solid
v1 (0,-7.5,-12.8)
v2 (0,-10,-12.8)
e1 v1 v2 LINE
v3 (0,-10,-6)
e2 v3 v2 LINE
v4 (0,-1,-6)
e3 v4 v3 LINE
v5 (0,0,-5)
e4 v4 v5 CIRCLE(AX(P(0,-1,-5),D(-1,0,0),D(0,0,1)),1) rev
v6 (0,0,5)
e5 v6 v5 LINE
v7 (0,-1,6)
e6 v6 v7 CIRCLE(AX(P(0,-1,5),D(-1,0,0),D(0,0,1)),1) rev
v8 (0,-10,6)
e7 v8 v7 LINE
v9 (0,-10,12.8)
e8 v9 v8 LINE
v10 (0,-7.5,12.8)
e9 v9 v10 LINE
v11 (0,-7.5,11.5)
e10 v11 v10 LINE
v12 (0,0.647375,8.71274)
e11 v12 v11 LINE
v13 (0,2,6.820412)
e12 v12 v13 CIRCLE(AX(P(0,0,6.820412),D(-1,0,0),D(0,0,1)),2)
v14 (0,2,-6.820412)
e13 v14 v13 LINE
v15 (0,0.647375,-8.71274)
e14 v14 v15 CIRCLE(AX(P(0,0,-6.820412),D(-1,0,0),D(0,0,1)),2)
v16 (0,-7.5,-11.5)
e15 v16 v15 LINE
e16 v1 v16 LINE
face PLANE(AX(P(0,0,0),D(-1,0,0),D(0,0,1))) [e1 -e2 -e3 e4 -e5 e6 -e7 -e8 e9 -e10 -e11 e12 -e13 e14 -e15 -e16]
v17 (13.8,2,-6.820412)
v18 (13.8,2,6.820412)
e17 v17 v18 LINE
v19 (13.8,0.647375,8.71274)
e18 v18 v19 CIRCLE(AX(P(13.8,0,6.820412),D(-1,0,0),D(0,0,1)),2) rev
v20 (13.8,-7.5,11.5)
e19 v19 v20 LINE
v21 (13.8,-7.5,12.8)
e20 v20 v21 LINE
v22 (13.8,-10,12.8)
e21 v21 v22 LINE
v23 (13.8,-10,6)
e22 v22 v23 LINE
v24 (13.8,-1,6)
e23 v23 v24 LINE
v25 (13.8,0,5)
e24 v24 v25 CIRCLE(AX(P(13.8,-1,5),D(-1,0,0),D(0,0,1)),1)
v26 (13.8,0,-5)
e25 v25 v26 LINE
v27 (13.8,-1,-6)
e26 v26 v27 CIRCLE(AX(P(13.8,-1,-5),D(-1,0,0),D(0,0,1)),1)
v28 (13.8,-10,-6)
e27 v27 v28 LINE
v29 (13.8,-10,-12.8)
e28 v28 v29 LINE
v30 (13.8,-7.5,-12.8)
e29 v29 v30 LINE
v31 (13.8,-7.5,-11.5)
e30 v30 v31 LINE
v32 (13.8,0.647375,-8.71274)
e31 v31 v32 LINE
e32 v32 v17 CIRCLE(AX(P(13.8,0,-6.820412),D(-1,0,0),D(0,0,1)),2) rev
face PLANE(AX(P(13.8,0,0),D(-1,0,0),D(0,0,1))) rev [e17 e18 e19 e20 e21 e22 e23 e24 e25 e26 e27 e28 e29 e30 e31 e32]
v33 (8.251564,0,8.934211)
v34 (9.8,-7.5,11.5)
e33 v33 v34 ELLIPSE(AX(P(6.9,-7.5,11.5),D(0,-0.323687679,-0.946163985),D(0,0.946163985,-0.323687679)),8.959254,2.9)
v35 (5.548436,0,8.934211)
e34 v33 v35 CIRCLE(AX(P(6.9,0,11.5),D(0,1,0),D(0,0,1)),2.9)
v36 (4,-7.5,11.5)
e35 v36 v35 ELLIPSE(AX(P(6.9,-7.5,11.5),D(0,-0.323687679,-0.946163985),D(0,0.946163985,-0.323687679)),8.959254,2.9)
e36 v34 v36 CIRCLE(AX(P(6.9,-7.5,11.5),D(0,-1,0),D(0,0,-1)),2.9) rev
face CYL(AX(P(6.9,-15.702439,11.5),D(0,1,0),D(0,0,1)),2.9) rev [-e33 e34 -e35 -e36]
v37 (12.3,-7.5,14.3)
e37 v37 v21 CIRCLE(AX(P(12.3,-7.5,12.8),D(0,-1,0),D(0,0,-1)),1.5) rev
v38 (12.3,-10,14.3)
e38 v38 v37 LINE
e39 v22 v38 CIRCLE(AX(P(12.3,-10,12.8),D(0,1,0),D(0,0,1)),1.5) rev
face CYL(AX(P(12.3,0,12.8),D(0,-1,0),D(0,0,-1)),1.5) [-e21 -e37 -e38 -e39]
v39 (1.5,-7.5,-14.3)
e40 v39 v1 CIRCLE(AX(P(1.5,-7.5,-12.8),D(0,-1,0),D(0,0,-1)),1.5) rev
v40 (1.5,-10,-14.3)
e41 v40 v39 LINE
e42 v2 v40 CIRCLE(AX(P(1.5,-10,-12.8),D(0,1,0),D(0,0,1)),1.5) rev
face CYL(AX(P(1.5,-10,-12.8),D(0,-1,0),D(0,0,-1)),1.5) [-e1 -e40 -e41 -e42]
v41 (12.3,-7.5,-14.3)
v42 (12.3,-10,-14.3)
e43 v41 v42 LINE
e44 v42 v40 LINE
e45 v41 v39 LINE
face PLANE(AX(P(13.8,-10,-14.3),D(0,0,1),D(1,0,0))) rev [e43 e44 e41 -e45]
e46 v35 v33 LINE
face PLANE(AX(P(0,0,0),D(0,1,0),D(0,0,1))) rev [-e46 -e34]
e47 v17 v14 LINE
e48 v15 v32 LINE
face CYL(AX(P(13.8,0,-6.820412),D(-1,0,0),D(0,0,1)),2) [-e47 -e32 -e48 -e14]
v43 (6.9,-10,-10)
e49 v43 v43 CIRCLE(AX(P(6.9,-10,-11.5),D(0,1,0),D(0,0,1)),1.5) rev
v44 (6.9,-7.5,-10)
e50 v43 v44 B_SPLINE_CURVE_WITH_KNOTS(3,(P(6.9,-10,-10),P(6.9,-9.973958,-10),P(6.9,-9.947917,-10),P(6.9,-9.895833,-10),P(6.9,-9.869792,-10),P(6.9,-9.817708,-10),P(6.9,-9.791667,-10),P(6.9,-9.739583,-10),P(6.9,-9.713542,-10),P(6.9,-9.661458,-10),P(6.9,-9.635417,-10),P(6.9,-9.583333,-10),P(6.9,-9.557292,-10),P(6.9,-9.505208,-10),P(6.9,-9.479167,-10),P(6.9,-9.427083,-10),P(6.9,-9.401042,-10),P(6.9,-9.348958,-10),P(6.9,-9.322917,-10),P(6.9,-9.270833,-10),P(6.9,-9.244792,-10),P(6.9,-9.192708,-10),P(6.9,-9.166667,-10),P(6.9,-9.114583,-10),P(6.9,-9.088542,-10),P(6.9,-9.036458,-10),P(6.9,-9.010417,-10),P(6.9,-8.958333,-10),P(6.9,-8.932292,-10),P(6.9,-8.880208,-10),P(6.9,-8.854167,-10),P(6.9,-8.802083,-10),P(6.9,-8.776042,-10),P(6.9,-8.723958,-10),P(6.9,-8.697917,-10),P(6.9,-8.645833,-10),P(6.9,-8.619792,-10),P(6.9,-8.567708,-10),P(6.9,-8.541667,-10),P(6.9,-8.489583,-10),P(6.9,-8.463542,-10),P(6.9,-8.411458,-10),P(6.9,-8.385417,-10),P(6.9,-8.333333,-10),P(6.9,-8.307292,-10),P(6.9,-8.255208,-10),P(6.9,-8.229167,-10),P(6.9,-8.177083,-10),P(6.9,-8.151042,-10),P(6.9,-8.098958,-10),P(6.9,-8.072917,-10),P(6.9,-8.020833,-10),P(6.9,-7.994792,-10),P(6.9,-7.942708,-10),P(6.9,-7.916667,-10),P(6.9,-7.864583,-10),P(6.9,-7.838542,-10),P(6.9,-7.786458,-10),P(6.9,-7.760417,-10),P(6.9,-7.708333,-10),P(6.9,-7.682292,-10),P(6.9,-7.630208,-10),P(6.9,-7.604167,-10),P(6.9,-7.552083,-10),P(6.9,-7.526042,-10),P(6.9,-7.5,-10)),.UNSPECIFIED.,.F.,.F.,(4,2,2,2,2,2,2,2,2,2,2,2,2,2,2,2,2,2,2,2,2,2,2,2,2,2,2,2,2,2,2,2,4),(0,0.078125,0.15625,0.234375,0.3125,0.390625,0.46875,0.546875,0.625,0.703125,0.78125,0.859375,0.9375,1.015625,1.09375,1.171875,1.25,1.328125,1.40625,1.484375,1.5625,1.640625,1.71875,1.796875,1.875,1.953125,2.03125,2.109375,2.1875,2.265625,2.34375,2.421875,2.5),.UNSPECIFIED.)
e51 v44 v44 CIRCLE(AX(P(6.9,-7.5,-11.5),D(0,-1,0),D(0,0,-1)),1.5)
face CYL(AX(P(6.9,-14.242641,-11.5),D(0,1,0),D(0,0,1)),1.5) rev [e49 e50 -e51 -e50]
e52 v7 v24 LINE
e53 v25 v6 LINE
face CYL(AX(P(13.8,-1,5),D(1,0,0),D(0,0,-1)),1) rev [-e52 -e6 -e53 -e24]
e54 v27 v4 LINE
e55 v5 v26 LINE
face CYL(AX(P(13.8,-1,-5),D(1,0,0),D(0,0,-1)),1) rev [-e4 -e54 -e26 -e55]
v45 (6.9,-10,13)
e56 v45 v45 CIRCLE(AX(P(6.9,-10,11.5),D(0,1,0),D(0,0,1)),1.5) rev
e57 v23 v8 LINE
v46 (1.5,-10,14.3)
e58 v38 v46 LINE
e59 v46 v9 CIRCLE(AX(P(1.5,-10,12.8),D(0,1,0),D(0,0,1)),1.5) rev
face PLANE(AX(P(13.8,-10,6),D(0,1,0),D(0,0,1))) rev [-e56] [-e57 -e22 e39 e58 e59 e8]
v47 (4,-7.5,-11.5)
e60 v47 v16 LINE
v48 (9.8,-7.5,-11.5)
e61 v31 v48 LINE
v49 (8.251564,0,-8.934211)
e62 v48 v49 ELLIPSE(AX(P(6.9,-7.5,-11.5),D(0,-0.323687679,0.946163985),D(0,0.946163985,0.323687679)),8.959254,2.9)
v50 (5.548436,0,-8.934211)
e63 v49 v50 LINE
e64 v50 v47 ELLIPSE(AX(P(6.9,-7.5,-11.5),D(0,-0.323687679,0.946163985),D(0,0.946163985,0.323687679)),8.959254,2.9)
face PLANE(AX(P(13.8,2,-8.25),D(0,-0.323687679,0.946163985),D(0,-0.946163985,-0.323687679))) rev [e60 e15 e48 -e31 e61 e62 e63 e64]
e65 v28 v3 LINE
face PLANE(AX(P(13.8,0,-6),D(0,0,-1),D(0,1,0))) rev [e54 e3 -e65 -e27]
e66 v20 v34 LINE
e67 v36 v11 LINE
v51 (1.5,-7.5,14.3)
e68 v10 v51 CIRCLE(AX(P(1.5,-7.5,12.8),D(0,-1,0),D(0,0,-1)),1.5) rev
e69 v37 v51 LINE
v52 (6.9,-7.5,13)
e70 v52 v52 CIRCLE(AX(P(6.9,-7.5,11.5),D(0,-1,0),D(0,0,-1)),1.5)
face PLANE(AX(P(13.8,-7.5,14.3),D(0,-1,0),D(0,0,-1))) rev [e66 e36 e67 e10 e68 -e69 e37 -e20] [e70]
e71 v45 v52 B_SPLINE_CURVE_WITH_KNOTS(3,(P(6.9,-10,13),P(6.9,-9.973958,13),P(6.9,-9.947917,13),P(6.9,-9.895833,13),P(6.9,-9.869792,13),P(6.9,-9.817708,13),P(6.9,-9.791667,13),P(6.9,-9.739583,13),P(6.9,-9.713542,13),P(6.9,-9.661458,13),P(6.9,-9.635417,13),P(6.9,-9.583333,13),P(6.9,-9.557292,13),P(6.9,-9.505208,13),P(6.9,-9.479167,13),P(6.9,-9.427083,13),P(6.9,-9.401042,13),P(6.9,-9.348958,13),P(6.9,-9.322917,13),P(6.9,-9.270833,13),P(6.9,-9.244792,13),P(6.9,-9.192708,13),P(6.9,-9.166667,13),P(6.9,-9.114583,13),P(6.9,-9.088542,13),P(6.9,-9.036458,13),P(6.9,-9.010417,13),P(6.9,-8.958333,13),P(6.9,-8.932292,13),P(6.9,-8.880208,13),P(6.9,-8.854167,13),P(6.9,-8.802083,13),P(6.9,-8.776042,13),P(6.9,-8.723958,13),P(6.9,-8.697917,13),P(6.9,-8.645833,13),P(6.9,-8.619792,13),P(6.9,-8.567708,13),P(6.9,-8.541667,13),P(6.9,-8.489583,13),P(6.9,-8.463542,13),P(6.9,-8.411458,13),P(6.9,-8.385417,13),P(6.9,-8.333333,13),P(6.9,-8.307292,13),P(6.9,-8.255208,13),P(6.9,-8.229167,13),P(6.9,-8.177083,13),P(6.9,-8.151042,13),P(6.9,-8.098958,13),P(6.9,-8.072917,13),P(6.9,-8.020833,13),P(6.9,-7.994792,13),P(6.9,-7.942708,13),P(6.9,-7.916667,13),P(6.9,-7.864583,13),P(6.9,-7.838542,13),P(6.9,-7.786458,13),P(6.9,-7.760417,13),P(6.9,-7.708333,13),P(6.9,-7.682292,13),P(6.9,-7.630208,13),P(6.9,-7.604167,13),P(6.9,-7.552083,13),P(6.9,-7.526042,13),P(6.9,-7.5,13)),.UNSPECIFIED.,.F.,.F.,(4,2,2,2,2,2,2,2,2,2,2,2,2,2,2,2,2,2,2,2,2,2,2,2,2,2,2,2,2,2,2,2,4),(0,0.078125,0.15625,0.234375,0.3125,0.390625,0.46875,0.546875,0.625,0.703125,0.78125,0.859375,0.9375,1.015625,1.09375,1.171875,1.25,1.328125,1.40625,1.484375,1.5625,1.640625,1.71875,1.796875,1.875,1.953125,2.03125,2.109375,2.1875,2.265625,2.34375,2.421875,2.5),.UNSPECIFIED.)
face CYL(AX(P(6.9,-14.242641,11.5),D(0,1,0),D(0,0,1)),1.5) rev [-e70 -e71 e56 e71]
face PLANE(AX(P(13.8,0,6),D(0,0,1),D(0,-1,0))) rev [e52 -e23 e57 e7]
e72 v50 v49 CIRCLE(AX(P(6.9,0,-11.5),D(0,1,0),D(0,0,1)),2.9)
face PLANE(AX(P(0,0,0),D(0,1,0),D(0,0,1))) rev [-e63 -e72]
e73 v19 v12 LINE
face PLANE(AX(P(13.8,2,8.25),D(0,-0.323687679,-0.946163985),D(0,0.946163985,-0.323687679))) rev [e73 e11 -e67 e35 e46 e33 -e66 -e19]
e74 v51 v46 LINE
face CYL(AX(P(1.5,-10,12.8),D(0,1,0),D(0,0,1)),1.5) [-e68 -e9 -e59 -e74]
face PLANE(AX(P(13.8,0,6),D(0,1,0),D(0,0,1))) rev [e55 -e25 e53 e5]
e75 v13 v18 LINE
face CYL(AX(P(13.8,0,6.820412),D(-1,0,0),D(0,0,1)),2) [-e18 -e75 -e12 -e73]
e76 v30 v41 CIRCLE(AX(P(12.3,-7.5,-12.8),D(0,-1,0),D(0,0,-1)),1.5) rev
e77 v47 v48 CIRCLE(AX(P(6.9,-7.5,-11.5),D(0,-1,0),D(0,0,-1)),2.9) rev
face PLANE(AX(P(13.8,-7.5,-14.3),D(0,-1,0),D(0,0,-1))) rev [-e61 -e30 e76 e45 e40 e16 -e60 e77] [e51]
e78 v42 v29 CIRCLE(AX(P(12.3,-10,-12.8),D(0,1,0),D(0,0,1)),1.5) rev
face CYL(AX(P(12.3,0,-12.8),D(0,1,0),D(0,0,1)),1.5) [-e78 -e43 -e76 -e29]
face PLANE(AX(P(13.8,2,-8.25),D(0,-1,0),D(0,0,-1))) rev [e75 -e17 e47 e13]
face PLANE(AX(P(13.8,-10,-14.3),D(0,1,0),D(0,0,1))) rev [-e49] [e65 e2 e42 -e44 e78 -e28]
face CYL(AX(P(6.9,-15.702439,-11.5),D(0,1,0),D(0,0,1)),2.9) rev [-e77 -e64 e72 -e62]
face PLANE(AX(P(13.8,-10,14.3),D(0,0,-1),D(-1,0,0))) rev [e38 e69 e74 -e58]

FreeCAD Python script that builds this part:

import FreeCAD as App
import Part
import Sketcher
from FreeCAD import Vector


def edges_at(feature, points):
    """Names of the edges that pass closest to the given points."""
    edges = feature.Shape.Edges
    near = lambda p: min(range(len(edges)), key=lambda i: edges[i].distToShape(Part.Vertex(*p))[0])
    return sorted({f"Edge{near(p) + 1}" for p in points})


def add_polygon(sketch, points):
    """Adds a closed chain of lines whose ends are joined by coincident constraints."""
    first, n = sketch.GeometryCount, len(points)
    for a, b in zip(points, points[1:] + points[:1]):
        sketch.addGeometry(Part.LineSegment(App.Vector(*a, 0), App.Vector(*b, 0)), False)
    for i in range(n):
        sketch.addConstraint(Sketcher.Constraint("Coincident", first + i, 2, first + (i + 1) % n, 1))

doc = App.newDocument("Part")
params = doc.addObject("Spreadsheet::Sheet", "Params")
for row, (alias, value) in enumerate([
    ("sketch1_width", "10 mm"),
    ("sketch1_height", "12 mm"),
    ("sketch1_width2", "2.5 mm"),
    ("sketch1_height2", "8.3 mm"),
    ("sketch1_height3", "2.8 mm"),
    ("pad1_length", "13.8 mm"),
    ("sketch2_diameter", "3 mm"),
    ("pocket1_length", "10 mm"),
    ("sketch3_diameter", "3 mm"),
    ("sketch3_diameter2", "5.8 mm"),
    ("pocket2_length", "7.5 mm"),
    ("fillet_radius", "1 mm"),
    ("fillet2_radius", "2 mm"),
    ("fillet3_radius", "1.5 mm"),
], start=1):
    params.set(f"A{row}", alias)
    params.set(f"B{row}", "=" + value)
    params.setAlias(f"B{row}", alias)

body = doc.addObject("PartDesign::Body", "Body")

sketch1 = body.newObject("Sketcher::SketchObject", "Sketch")
sketch1.AttachmentSupport = (doc.getObject("YZ_Plane"), [""])
sketch1.MapMode = "FlatFace"
add_polygon(sketch1, [(0, 6), (0, -6), (-10, -6), (-10, -14.3), (-7.5, -14.3), (-7.5, -11.5), (2, -8.25), (2, 8.25), (-7.5, 11.5), (-7.5, 14.3), (-10, 14.3), (-10, 6)])
sketch1.addConstraint([
    Sketcher.Constraint("Vertical", 0),
    Sketcher.Constraint("Horizontal", 1),
    Sketcher.Constraint("Vertical", 2),
    Sketcher.Constraint("Horizontal", 3),
    Sketcher.Constraint("Vertical", 4),
    Sketcher.Constraint("Vertical", 6),
    Sketcher.Constraint("Vertical", 8),
    Sketcher.Constraint("Horizontal", 9),
    Sketcher.Constraint("Vertical", 10),
    Sketcher.Constraint("Horizontal", 11),
    Sketcher.Constraint("Symmetric", 0, 2, 11, 2, -1, 1),
    Sketcher.Constraint("Symmetric", 4, 2, 7, 2, -1),
    Sketcher.Constraint("Symmetric", 2, 2, 9, 2, -1),
    Sketcher.Constraint("Equal", 5, 7),
    Sketcher.Constraint("DistanceX", 1, 2, 1, 1, 10.0),
    Sketcher.Constraint("DistanceY", 0, 2, 0, 1, 12.0),
    Sketcher.Constraint("DistanceX", 3, 1, 3, 2, 2.5),
    Sketcher.Constraint("DistanceY", 2, 2, 2, 1, 8.3),
    Sketcher.Constraint("DistanceY", 4, 1, 4, 2, 2.8),
    Sketcher.Constraint("DistanceY", 6, 1, 6, 2, 16.5),
    Sketcher.Constraint("DistanceX", -1, 1, 5, 2, 2.0),
])
sketch1.setExpression("Constraints[26]", "Params.sketch1_width")
sketch1.setExpression("Constraints[27]", "Params.sketch1_height")
sketch1.setExpression("Constraints[28]", "Params.sketch1_width2")
sketch1.setExpression("Constraints[29]", "Params.sketch1_height2")
sketch1.setExpression("Constraints[30]", "Params.sketch1_height3")
pad1 = body.newObject("PartDesign::Pad", "Pad")
pad1.Profile = sketch1
pad1.setExpression("Length", "Params.pad1_length")

sketch2 = body.newObject("Sketcher::SketchObject", "Sketch001")
sketch2.AttachmentSupport = (doc.getObject("XZ_Plane"), [""])
sketch2.MapMode = "FlatFace"
sketch2.addGeometry([
    Part.Circle(Vector(6.9, 11.5, 0), Vector(0, 0, 1), 1.5),
    Part.Circle(Vector(6.9, -11.5, 0), Vector(0, 0, 1), 1.5),
], False)
sketch2.addConstraint([
    Sketcher.Constraint("Equal", 0, 1),
    Sketcher.Constraint("Symmetric", 0, 3, 1, 3, -1),
    Sketcher.Constraint("Diameter", 0, 3.0),
    Sketcher.Constraint("DistanceY", 1, 3, 0, 3, 23.0),
    Sketcher.Constraint("DistanceX", -1, 1, 0, 3, 6.9),
])
sketch2.setExpression("Constraints[2]", "Params.sketch2_diameter")
pocket1 = body.newObject("PartDesign::Pocket", "Pocket")
pocket1.Profile = sketch2
pocket1.setExpression("Length", "Params.pocket1_length")
pocket1.Reversed = True

sketch3 = body.newObject("Sketcher::SketchObject", "Sketch002")
sketch3.AttachmentSupport = (doc.getObject("XZ_Plane"), [""])
sketch3.MapMode = "FlatFace"
sketch3.addGeometry([
    Part.Circle(Vector(6.9, 11.5, 0), Vector(0, 0, 1), 2.9),
    Part.Circle(Vector(6.9, 11.5, 0), Vector(0, 0, 1), 1.5),
    Part.Circle(Vector(6.9, -11.5, 0), Vector(0, 0, 1), 2.9),
    Part.Circle(Vector(6.9, -11.5, 0), Vector(0, 0, 1), 1.5),
], False)
sketch3.addConstraint([
    Sketcher.Constraint("Coincident", 1, 3, 0, 3),
    Sketcher.Constraint("Coincident", 3, 3, 2, 3),
    Sketcher.Constraint("Equal", 0, 2),
    Sketcher.Constraint("Equal", 1, 3),
    Sketcher.Constraint("Symmetric", 0, 3, 2, 3, -1),
    Sketcher.Constraint("Diameter", 1, 3.0),
    Sketcher.Constraint("Diameter", 0, 5.8),
    Sketcher.Constraint("DistanceY", 2, 3, 0, 3, 23.0),
    Sketcher.Constraint("DistanceX", -1, 1, 0, 3, 6.9),
])
sketch3.setExpression("Constraints[5]", "Params.sketch3_diameter")
sketch3.setExpression("Constraints[6]", "Params.sketch3_diameter2")
pocket2 = body.newObject("PartDesign::Pocket", "Pocket001")
pocket2.Profile = sketch3
pocket2.setExpression("Length", "Params.pocket2_length")
pocket2.Reversed = True
doc.recompute()

fillet = body.newObject("PartDesign::Fillet", "Fillet")
fillet.Base = (pocket2, edges_at(pocket2, [(6.9, 0, -6), (6.9, 0, 6)]))
fillet.setExpression("Radius", "Params.fillet_radius")
doc.recompute()

fillet2 = body.newObject("PartDesign::Fillet", "Fillet001")
fillet2.Base = (fillet, edges_at(fillet, [(6.9, 2, 8.25), (6.9, 2, -8.25)]))
fillet2.setExpression("Radius", "Params.fillet2_radius")
doc.recompute()

fillet3 = body.newObject("PartDesign::Fillet", "Fillet002")
fillet3.Base = (fillet2, edges_at(fillet2, [
    (13.8, -8.75, -14.3),
    (0, -8.75, 14.3),
    (0, -8.75, -14.3),
    (13.8, -8.75, 14.3),
]))
fillet3.setExpression("Radius", "Params.fillet3_radius")

doc.recompute()
